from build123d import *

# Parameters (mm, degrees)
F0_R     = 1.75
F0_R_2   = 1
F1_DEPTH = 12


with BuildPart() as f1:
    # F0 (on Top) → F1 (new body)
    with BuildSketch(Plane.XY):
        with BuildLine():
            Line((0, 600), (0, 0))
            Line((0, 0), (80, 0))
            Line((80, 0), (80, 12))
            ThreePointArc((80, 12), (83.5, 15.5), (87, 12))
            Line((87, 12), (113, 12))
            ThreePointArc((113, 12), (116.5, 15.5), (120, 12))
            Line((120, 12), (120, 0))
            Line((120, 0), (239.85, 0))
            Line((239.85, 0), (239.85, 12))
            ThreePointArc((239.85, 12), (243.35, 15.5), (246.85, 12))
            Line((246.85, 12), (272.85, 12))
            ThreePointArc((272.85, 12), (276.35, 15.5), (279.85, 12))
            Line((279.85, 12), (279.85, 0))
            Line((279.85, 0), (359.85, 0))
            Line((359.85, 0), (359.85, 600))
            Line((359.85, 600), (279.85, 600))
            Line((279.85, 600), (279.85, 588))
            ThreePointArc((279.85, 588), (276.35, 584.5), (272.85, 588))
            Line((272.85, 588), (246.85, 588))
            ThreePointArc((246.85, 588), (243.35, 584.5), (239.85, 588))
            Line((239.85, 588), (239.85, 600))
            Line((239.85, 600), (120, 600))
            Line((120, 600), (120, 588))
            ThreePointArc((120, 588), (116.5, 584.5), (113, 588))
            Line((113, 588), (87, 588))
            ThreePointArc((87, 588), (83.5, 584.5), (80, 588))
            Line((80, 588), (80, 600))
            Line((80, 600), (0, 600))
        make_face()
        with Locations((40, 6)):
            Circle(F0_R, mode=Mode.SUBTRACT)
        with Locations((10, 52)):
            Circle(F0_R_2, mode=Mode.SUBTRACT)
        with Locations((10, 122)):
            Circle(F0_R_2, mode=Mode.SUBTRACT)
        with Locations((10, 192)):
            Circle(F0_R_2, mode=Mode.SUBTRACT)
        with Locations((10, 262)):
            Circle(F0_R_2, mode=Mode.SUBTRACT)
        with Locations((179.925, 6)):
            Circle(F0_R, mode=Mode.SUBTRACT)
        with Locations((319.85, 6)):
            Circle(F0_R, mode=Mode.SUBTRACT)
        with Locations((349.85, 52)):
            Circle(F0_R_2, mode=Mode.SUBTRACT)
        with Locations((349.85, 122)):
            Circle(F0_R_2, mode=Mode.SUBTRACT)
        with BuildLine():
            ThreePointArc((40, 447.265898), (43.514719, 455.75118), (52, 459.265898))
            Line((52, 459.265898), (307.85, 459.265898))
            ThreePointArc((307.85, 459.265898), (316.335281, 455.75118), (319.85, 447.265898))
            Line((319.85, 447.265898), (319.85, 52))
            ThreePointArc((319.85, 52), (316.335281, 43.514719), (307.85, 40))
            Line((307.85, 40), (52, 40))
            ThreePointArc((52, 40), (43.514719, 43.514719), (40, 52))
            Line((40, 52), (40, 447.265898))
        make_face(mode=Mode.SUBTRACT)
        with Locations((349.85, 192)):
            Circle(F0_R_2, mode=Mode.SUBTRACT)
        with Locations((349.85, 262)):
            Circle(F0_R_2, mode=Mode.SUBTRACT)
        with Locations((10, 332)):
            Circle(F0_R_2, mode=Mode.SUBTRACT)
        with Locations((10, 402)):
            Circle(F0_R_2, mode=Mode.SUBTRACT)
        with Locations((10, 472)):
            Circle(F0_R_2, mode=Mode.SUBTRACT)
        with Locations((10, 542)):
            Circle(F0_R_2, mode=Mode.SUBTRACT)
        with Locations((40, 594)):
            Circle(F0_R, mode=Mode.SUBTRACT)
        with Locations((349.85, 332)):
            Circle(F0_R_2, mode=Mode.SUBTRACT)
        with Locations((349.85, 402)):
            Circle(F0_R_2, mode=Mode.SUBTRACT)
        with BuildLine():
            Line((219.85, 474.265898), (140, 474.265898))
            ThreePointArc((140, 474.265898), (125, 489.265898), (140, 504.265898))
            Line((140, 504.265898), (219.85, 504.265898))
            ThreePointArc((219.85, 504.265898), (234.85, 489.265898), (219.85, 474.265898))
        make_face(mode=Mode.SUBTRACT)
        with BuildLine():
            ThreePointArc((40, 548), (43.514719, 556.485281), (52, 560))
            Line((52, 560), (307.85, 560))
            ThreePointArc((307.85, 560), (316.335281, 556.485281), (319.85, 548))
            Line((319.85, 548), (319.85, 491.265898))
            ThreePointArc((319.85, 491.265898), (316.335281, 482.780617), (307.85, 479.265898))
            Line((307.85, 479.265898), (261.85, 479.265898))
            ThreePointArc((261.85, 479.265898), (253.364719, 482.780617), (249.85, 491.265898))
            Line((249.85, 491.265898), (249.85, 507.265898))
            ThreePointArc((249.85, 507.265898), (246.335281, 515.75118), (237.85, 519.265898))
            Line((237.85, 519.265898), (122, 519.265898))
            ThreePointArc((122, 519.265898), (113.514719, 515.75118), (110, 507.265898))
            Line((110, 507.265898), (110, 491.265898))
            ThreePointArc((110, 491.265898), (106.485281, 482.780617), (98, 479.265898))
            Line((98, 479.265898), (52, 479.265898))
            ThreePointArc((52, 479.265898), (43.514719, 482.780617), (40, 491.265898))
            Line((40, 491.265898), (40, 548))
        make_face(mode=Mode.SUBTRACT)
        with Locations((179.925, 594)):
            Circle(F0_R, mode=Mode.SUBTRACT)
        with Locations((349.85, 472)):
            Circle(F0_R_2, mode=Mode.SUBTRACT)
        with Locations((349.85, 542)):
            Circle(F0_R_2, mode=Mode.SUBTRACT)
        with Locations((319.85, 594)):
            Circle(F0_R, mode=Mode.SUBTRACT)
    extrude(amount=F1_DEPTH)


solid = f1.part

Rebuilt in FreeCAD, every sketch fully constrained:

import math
import FreeCAD as App
import Part
import Sketcher
Q = App.Units.Quantity

doc = App.newDocument("Part")
body = doc.addObject("PartDesign::Body", "Body")

# Sketch on XY plane
sketch1 = body.newObject("Sketcher::SketchObject", "Sketch")
sketch1.AttachmentSupport = (doc.getObject("XY_Plane"), [""])
sketch1.MapMode = "FlatFace"
sketch1.addGeometry([
    Part.LineSegment(App.Vector(0, 600, 0), App.Vector(0, 0, 0)),  # 0
    Part.LineSegment(App.Vector(0, 0, 0), App.Vector(80, 0, 0)),  # 1
    Part.LineSegment(App.Vector(80, 0, 0), App.Vector(80, 12, 0)),  # 2
    Part.ArcOfCircle(Part.Circle(App.Vector(83.5, 12, 0), App.Vector(0, 0, 1), 3.5), math.radians(0), math.radians(180)),  # 3
    Part.LineSegment(App.Vector(87, 12, 0), App.Vector(113, 12, 0)),  # 4
    Part.ArcOfCircle(Part.Circle(App.Vector(116.5, 12, 0), App.Vector(0, 0, 1), 3.5), math.radians(0), math.radians(180)),  # 5
    Part.LineSegment(App.Vector(120, 12, 0), App.Vector(120, 0, 0)),  # 6
    Part.LineSegment(App.Vector(120, 0, 0), App.Vector(239.85, 0, 0)),  # 7
    Part.LineSegment(App.Vector(239.85, 0, 0), App.Vector(239.85, 12, 0)),  # 8
    Part.ArcOfCircle(Part.Circle(App.Vector(243.35, 12, 0), App.Vector(0, 0, 1), 3.5), math.radians(0), math.radians(180)),  # 9
    Part.LineSegment(App.Vector(246.85, 12, 0), App.Vector(272.85, 12, 0)),  # 10
    Part.ArcOfCircle(Part.Circle(App.Vector(276.35, 12, 0), App.Vector(0, 0, 1), 3.5), math.radians(0), math.radians(180)),  # 11
    Part.LineSegment(App.Vector(279.85, 12, 0), App.Vector(279.85, 0, 0)),  # 12
    Part.LineSegment(App.Vector(279.85, 0, 0), App.Vector(359.85, 0, 0)),  # 13
    Part.LineSegment(App.Vector(359.85, 0, 0), App.Vector(359.85, 600, 0)),  # 14
    Part.LineSegment(App.Vector(359.85, 600, 0), App.Vector(279.85, 600, 0)),  # 15
    Part.LineSegment(App.Vector(279.85, 600, 0), App.Vector(279.85, 588, 0)),  # 16
    Part.ArcOfCircle(Part.Circle(App.Vector(276.35, 588, 0), App.Vector(0, 0, 1), 3.5), math.radians(180), math.radians(360)),  # 17
    Part.LineSegment(App.Vector(272.85, 588, 0), App.Vector(246.85, 588, 0)),  # 18
    Part.ArcOfCircle(Part.Circle(App.Vector(243.35, 588, 0), App.Vector(0, 0, 1), 3.5), math.radians(180), math.radians(360)),  # 19
    Part.LineSegment(App.Vector(239.85, 588, 0), App.Vector(239.85, 600, 0)),  # 20
    Part.LineSegment(App.Vector(239.85, 600, 0), App.Vector(120, 600, 0)),  # 21
    Part.LineSegment(App.Vector(120, 600, 0), App.Vector(120, 588, 0)),  # 22
    Part.ArcOfCircle(Part.Circle(App.Vector(116.5, 588, 0), App.Vector(0, 0, 1), 3.5), math.radians(180), math.radians(360)),  # 23
    Part.LineSegment(App.Vector(113, 588, 0), App.Vector(87, 588, 0)),  # 24
    Part.ArcOfCircle(Part.Circle(App.Vector(83.5, 588, 0), App.Vector(0, 0, 1), 3.5), math.radians(180), math.radians(360)),  # 25
    Part.LineSegment(App.Vector(80, 588, 0), App.Vector(80, 600, 0)),  # 26
    Part.LineSegment(App.Vector(80, 600, 0), App.Vector(0, 600, 0)),  # 27
    Part.Circle(App.Vector(40, 6, 0), App.Vector(0, 0, 1), 1.75),  # 28
    Part.Circle(App.Vector(10, 52, 0), App.Vector(0, 0, 1), 1),  # 29
    Part.Circle(App.Vector(10, 122, 0), App.Vector(0, 0, 1), 1),  # 30
    Part.Circle(App.Vector(10, 192, 0), App.Vector(0, 0, 1), 1),  # 31
    Part.Circle(App.Vector(10, 262, 0), App.Vector(0, 0, 1), 1),  # 32
    Part.Circle(App.Vector(179.925, 6, 0), App.Vector(0, 0, 1), 1.75),  # 33
    Part.Circle(App.Vector(319.85, 6, 0), App.Vector(0, 0, 1), 1.75),  # 34
    Part.Circle(App.Vector(349.85, 52, 0), App.Vector(0, 0, 1), 1),  # 35
    Part.Circle(App.Vector(349.85, 122, 0), App.Vector(0, 0, 1), 1),  # 36
    Part.LineSegment(App.Vector(40, 52, 0), App.Vector(40, 447.265898, 0)),  # 37
    Part.ArcOfCircle(Part.Circle(App.Vector(52, 447.265898, 0), App.Vector(0, 0, 1), 12), math.radians(89.999998), math.radians(180.000002)),  # 38
    Part.LineSegment(App.Vector(52, 459.265898, 0), App.Vector(307.85, 459.265898, 0)),  # 39
    Part.ArcOfCircle(Part.Circle(App.Vector(307.85, 447.265898, 0), App.Vector(0, 0, 1), 12), math.radians(-0.000002), math.radians(90.000002)),  # 40
    Part.LineSegment(App.Vector(319.85, 447.265898, 0), App.Vector(319.85, 52, 0)),  # 41
    Part.ArcOfCircle(Part.Circle(App.Vector(307.849999, 52.000001, 0), App.Vector(0, 0, 1), 12.000001), math.radians(-89.999994), math.radians(-0.000006)),  # 42
    Part.LineSegment(App.Vector(307.85, 40, 0), App.Vector(52, 40, 0)),  # 43
    Part.ArcOfCircle(Part.Circle(App.Vector(52.000001, 52.000001, 0), App.Vector(0, 0, 1), 12.000001), math.radians(-179.999994), math.radians(-90.000006)),  # 44
    Part.Circle(App.Vector(349.85, 192, 0), App.Vector(0, 0, 1), 1),  # 45
    Part.Circle(App.Vector(349.85, 262, 0), App.Vector(0, 0, 1), 1),  # 46
    Part.Circle(App.Vector(10, 332, 0), App.Vector(0, 0, 1), 1),  # 47
    Part.Circle(App.Vector(10, 402, 0), App.Vector(0, 0, 1), 1),  # 48
    Part.Circle(App.Vector(10, 472, 0), App.Vector(0, 0, 1), 1),  # 49
    Part.Circle(App.Vector(10, 542, 0), App.Vector(0, 0, 1), 1),  # 50
    Part.Circle(App.Vector(40, 594, 0), App.Vector(0, 0, 1), 1.75),  # 51
    Part.Circle(App.Vector(349.85, 332, 0), App.Vector(0, 0, 1), 1),  # 52
    Part.Circle(App.Vector(349.85, 402, 0), App.Vector(0, 0, 1), 1),  # 53
    Part.ArcOfCircle(Part.Circle(App.Vector(219.85, 489.265898, 0), App.Vector(0, 0, 1), 15), math.radians(-90), math.radians(90)),  # 54
    Part.LineSegment(App.Vector(219.85, 474.265898, 0), App.Vector(140, 474.265898, 0)),  # 55
    Part.ArcOfCircle(Part.Circle(App.Vector(140, 489.265898, 0), App.Vector(0, 0, 1), 15), math.radians(90), math.radians(270)),  # 56
    Part.LineSegment(App.Vector(140, 504.265898, 0), App.Vector(219.85, 504.265898, 0)),  # 57
    Part.LineSegment(App.Vector(40, 491.265898, 0), App.Vector(40, 548, 0)),  # 58
    Part.ArcOfCircle(Part.Circle(App.Vector(52.000001, 547.999999, 0), App.Vector(0, 0, 1), 12.000001), math.radians(90.000006), math.radians(179.999994)),  # 59
    Part.LineSegment(App.Vector(52, 560, 0), App.Vector(307.85, 560, 0)),  # 60
    Part.ArcOfCircle(Part.Circle(App.Vector(307.849999, 547.999999, 0), App.Vector(0, 0, 1), 12.000001), math.radians(0.000006), math.radians(89.999994)),  # 61
    Part.LineSegment(App.Vector(319.85, 548, 0), App.Vector(319.85, 491.265898, 0)),  # 62
    Part.ArcOfCircle(Part.Circle(App.Vector(307.849999, 491.265899, 0), App.Vector(0, 0, 1), 12.000001), math.radians(-89.999994), math.radians(-0.000006)),  # 63
    Part.LineSegment(App.Vector(307.85, 479.265898, 0), App.Vector(261.85, 479.265898, 0)),  # 64
    Part.ArcOfCircle(Part.Circle(App.Vector(261.850001, 491.265899, 0), App.Vector(0, 0, 1), 12.000001), math.radians(-179.999994), math.radians(-90.000006)),  # 65
    Part.LineSegment(App.Vector(249.85, 491.265898, 0), App.Vector(249.85, 507.265898, 0)),  # 66
    Part.ArcOfCircle(Part.Circle(App.Vector(237.85, 507.265898, 0), App.Vector(0, 0, 1), 12), math.radians(-0.000002), math.radians(90.000002)),  # 67
    Part.LineSegment(App.Vector(237.85, 519.265898, 0), App.Vector(122, 519.265898, 0)),  # 68
    Part.ArcOfCircle(Part.Circle(App.Vector(122, 507.265898, 0), App.Vector(0, 0, 1), 12), math.radians(89.999998), math.radians(180.000002)),  # 69
    Part.LineSegment(App.Vector(110, 507.265898, 0), App.Vector(110, 491.265898, 0)),  # 70
    Part.ArcOfCircle(Part.Circle(App.Vector(97.999999, 491.265899, 0), App.Vector(0, 0, 1), 12.000001), math.radians(-89.999994), math.radians(-0.000006)),  # 71
    Part.LineSegment(App.Vector(98, 479.265898, 0), App.Vector(52, 479.265898, 0)),  # 72
    Part.ArcOfCircle(Part.Circle(App.Vector(52.000001, 491.265899, 0), App.Vector(0, 0, 1), 12.000001), math.radians(-179.999994), math.radians(-90.000006)),  # 73
    Part.Circle(App.Vector(179.925, 594, 0), App.Vector(0, 0, 1), 1.75),  # 74
    Part.Circle(App.Vector(349.85, 472, 0), App.Vector(0, 0, 1), 1),  # 75
    Part.Circle(App.Vector(349.85, 542, 0), App.Vector(0, 0, 1), 1),  # 76
    Part.Circle(App.Vector(319.85, 594, 0), App.Vector(0, 0, 1), 1.75),  # 77
], False)
sketch1.addConstraint([
    Sketcher.Constraint("Coincident", 0, 2, 1, 1),
    Sketcher.Constraint("Coincident", 1, 2, 2, 1),
    Sketcher.Constraint("Tangent", 2, 2, 3, 2),
    Sketcher.Constraint("Coincident", 3, 1, 4, 1),
    Sketcher.Constraint("Coincident", 4, 2, 5, 2),
    Sketcher.Constraint("Tangent", 5, 1, 6, 1),
    Sketcher.Constraint("Coincident", 6, 2, 7, 1),
    Sketcher.Constraint("Coincident", 7, 2, 8, 1),
    Sketcher.Constraint("Tangent", 8, 2, 9, 2),
    Sketcher.Constraint("Coincident", 9, 1, 10, 1),
    Sketcher.Constraint("Coincident", 10, 2, 11, 2),
    Sketcher.Constraint("Tangent", 11, 1, 12, 1),
    Sketcher.Constraint("Coincident", 12, 2, 13, 1),
    Sketcher.Constraint("Coincident", 13, 2, 14, 1),
    Sketcher.Constraint("Coincident", 14, 2, 15, 1),
    Sketcher.Constraint("Coincident", 15, 2, 16, 1),
    Sketcher.Constraint("Tangent", 16, 2, 17, 2),
    Sketcher.Constraint("Coincident", 17, 1, 18, 1),
    Sketcher.Constraint("Coincident", 18, 2, 19, 2),
    Sketcher.Constraint("Tangent", 19, 1, 20, 1),
    Sketcher.Constraint("Coincident", 20, 2, 21, 1),
    Sketcher.Constraint("Coincident", 21, 2, 22, 1),
    Sketcher.Constraint("Tangent", 22, 2, 23, 2),
    Sketcher.Constraint("Coincident", 23, 1, 24, 1),
    Sketcher.Constraint("Coincident", 24, 2, 25, 2),
    Sketcher.Constraint("Tangent", 25, 1, 26, 1),
    Sketcher.Constraint("Coincident", 26, 2, 27, 1),
    Sketcher.Constraint("Coincident", 27, 2, 0, 1),
    Sketcher.Constraint("Tangent", 37, 2, 38, 2),
    Sketcher.Constraint("Tangent", 38, 1, 39, 1),
    Sketcher.Constraint("Tangent", 39, 2, 40, 2),
    Sketcher.Constraint("Tangent", 40, 1, 41, 1),
    Sketcher.Constraint("Tangent", 41, 2, 42, 2),
    Sketcher.Constraint("Tangent", 42, 1, 43, 1),
    Sketcher.Constraint("Tangent", 43, 2, 44, 2),
    Sketcher.Constraint("Tangent", 44, 1, 37, 1),
    Sketcher.Constraint("Tangent", 54, 1, 55, 1),
    Sketcher.Constraint("Tangent", 55, 2, 56, 2),
    Sketcher.Constraint("Tangent", 56, 1, 57, 1),
    Sketcher.Constraint("Tangent", 57, 2, 54, 2),
    Sketcher.Constraint("Tangent", 58, 2, 59, 2),
    Sketcher.Constraint("Tangent", 59, 1, 60, 1),
    Sketcher.Constraint("Tangent", 60, 2, 61, 2),
    Sketcher.Constraint("Tangent", 61, 1, 62, 1),
    Sketcher.Constraint("Tangent", 62, 2, 63, 2),
    Sketcher.Constraint("Tangent", 63, 1, 64, 1),
    Sketcher.Constraint("Tangent", 64, 2, 65, 2),
    Sketcher.Constraint("Tangent", 65, 1, 66, 1),
    Sketcher.Constraint("Tangent", 66, 2, 67, 1),
    Sketcher.Constraint("Tangent", 67, 2, 68, 1),
    Sketcher.Constraint("Tangent", 68, 2, 69, 1),
    Sketcher.Constraint("Tangent", 69, 2, 70, 1),
    Sketcher.Constraint("Tangent", 70, 2, 71, 2),
    Sketcher.Constraint("Tangent", 71, 1, 72, 1),
    Sketcher.Constraint("Tangent", 72, 2, 73, 2),
    Sketcher.Constraint("Tangent", 73, 1, 58, 1),
    Sketcher.Constraint("Vertical", 0),
    Sketcher.Constraint("Horizontal", 1),
    Sketcher.Constraint("Vertical", 2),
    Sketcher.Constraint("Horizontal", 4),
    Sketcher.Constraint("Vertical", 6),
    Sketcher.Constraint("Horizontal", 7),
    Sketcher.Constraint("Vertical", 8),
    Sketcher.Constraint("Horizontal", 10),
    Sketcher.Constraint("Vertical", 12),
    Sketcher.Constraint("Horizontal", 13),
    Sketcher.Constraint("Vertical", 14),
    Sketcher.Constraint("Horizontal", 15),
    Sketcher.Constraint("Vertical", 16),
    Sketcher.Constraint("Horizontal", 18),
    Sketcher.Constraint("Vertical", 20),
    Sketcher.Constraint("Horizontal", 21),
    Sketcher.Constraint("Vertical", 22),
    Sketcher.Constraint("Horizontal", 24),
    Sketcher.Constraint("Vertical", 26),
    Sketcher.Constraint("Horizontal", 27),
    Sketcher.Constraint("Vertical", 37),
    Sketcher.Constraint("Horizontal", 39),
    Sketcher.Constraint("Vertical", 41),
    Sketcher.Constraint("Horizontal", 43),
    Sketcher.Constraint("Horizontal", 55),
    Sketcher.Constraint("Horizontal", 57),
    Sketcher.Constraint("Vertical", 58),
    Sketcher.Constraint("Horizontal", 60),
    Sketcher.Constraint("Vertical", 62),
    Sketcher.Constraint("Horizontal", 64),
    Sketcher.Constraint("Vertical", 66),
    Sketcher.Constraint("Horizontal", 68),
    Sketcher.Constraint("Vertical", 70),
    Sketcher.Constraint("Horizontal", 72),
    Sketcher.Constraint("Coincident", 0, 2, -1, 1),
    Sketcher.Constraint("Equal", 3, 5),
    Sketcher.Constraint("Equal", 5, 9),
    Sketcher.Constraint("Equal", 9, 11),
    Sketcher.Constraint("Equal", 11, 17),
    Sketcher.Constraint("Equal", 17, 19),
    Sketcher.Constraint("Equal", 19, 23),
    Sketcher.Constraint("Equal", 23, 25),
    Sketcher.Constraint("Equal", 29, 30),
    Sketcher.Constraint("Equal", 30, 31),
    Sketcher.Constraint("Equal", 31, 32),
    Sketcher.Constraint("Equal", 28, 33),
    Sketcher.Constraint("Equal", 33, 34),
    Sketcher.Constraint("Equal", 32, 35),
    Sketcher.Constraint("Equal", 35, 36),
    Sketcher.Constraint("Equal", 38, 40),
    Sketcher.Constraint("Equal", 40, 42),
    Sketcher.Constraint("Equal", 42, 44),
    Sketcher.Constraint("Equal", 36, 45),
    Sketcher.Constraint("Equal", 45, 46),
    Sketcher.Constraint("Equal", 46, 47),
    Sketcher.Constraint("Equal", 47, 48),
    Sketcher.Constraint("Equal", 48, 49),
    Sketcher.Constraint("Equal", 49, 50),
    Sketcher.Constraint("Equal", 34, 51),
    Sketcher.Constraint("Equal", 50, 52),
    Sketcher.Constraint("Equal", 52, 53),
    Sketcher.Constraint("Equal", 44, 59),
    Sketcher.Constraint("Equal", 59, 61),
    Sketcher.Constraint("Equal", 61, 63),
    Sketcher.Constraint("Equal", 63, 65),
    Sketcher.Constraint("Equal", 65, 67),
    Sketcher.Constraint("Equal", 67, 69),
    Sketcher.Constraint("Equal", 69, 71),
    Sketcher.Constraint("Equal", 71, 73),
    Sketcher.Constraint("Equal", 51, 74),
    Sketcher.Constraint("Equal", 53, 75),
    Sketcher.Constraint("Equal", 75, 76),
    Sketcher.Constraint("Equal", 74, 77),
    Sketcher.Constraint("PointOnObject", 6, 2, -1),
    Sketcher.Constraint("PointOnObject", 12, 2, -1),
    Sketcher.Constraint("Horizontal", 3, 3, 5, 3),
    Sketcher.Constraint("Horizontal", 5, 3, 9, 3),
    Sketcher.Constraint("Horizontal", 9, 3, 11, 3),
    Sketcher.Constraint("Horizontal", 17, 3, 19, 3),
    Sketcher.Constraint("Horizontal", 19, 3, 23, 3),
    Sketcher.Constraint("Horizontal", 23, 3, 25, 3),
    Sketcher.Constraint("Horizontal", 28, 3, 33, 3),
    Sketcher.Constraint("Horizontal", 33, 3, 34, 3),
    Sketcher.Constraint("Horizontal", 29, 3, 35, 3),
    Sketcher.Constraint("Horizontal", 30, 3, 36, 3),
    Sketcher.Constraint("Horizontal", 35, 3, 42, 3),
    Sketcher.Constraint("Horizontal", 31, 3, 45, 3),
    Sketcher.Constraint("Horizontal", 32, 3, 46, 3),
    Sketcher.Constraint("Horizontal", 47, 3, 52, 3),
    Sketcher.Constraint("Horizontal", 48, 3, 53, 3),
    Sketcher.Constraint("Horizontal", 65, 3, 71, 3),
    Sketcher.Constraint("Horizontal", 51, 3, 74, 3),
    Sketcher.Constraint("Horizontal", 49, 3, 75, 3),
    Sketcher.Constraint("Horizontal", 50, 3, 76, 3),
    Sketcher.Constraint("Horizontal", 74, 3, 77, 3),
    Sketcher.Constraint("Horizontal", 2, 2, 3, 1),
    Sketcher.Constraint("Horizontal", 8, 2, 9, 1),
    Sketcher.Constraint("Horizontal", 16, 2, 17, 1),
    Sketcher.Constraint("Horizontal", 15, 2, 20, 2),
    Sketcher.Constraint("Horizontal", 22, 2, 23, 1),
    Sketcher.Constraint("Horizontal", 21, 2, 26, 2),
    Sketcher.Constraint("Vertical", 11, 3, 17, 3),
    Sketcher.Constraint("Vertical", 9, 3, 19, 3),
    Sketcher.Constraint("Vertical", 5, 3, 23, 3),
    Sketcher.Constraint("Vertical", 3, 3, 25, 3),
    Sketcher.Constraint("Vertical", 29, 3, 30, 3),
    Sketcher.Constraint("Vertical", 30, 3, 31, 3),
    Sketcher.Constraint("Vertical", 31, 3, 32, 3),
    Sketcher.Constraint("Vertical", 35, 3, 36, 3),
    Sketcher.Constraint("Vertical", 36, 3, 45, 3),
    Sketcher.Constraint("Vertical", 45, 3, 46, 3),
    Sketcher.Constraint("Vertical", 32, 3, 47, 3),
    Sketcher.Constraint("Vertical", 47, 3, 48, 3),
    Sketcher.Constraint("Vertical", 48, 3, 49, 3),
    Sketcher.Constraint("Vertical", 49, 3, 50, 3),
    Sketcher.Constraint("Vertical", 28, 3, 51, 3),
    Sketcher.Constraint("Vertical", 46, 3, 52, 3),
    Sketcher.Constraint("Vertical", 52, 3, 53, 3),
    Sketcher.Constraint("Vertical", 44, 3, 59, 3),
    Sketcher.Constraint("Vertical", 42, 3, 61, 3),
    Sketcher.Constraint("Vertical", 33, 3, 74, 3),
    Sketcher.Constraint("Vertical", 53, 3, 75, 3),
    Sketcher.Constraint("Vertical", 75, 3, 76, 3),
    Sketcher.Constraint("Vertical", 34, 3, 77, 3),
    Sketcher.Constraint("Vertical", 51, 3, 37, 2),
    Sketcher.Constraint("Vertical", 77, 3, 40, 1),
    Sketcher.Constraint("Equal", 4, 10),
    Sketcher.Constraint("Equal", 1, 13),
    Sketcher.Constraint("Equal", 64, 72),
    Sketcher.Constraint("Equal", 12, 16),
    Sketcher.Constraint("Diameter", 29, Q("2 mm")),
    Sketcher.Constraint("Radius", 38, Q("12 mm")),
    Sketcher.Constraint("Radius", 54, Q("15 mm")),
    Sketcher.Constraint("Diameter", 28, Q("3.5 mm")),
    Sketcher.Constraint("Radius", 3, Q("3.5 mm")),
    Sketcher.Constraint("DistanceX", 1, 1, 1, 2, Q("80 mm")),
    Sketcher.Constraint("DistanceX", 4, 1, 4, 2, Q("26 mm")),
    Sketcher.Constraint("DistanceX", 64, 2, 64, 1, Q("46 mm")),
    Sketcher.Constraint("DistanceY", 0, 2, 0, 1, Q("600 mm")),
    Sketcher.Constraint("DistanceY", 2, 1, 2, 2, Q("12 mm")),
    Sketcher.Constraint("DistanceY", 66, 1, 66, 2, Q("16 mm")),
    Sketcher.Constraint("DistanceX", -1, 1, 28, 3, Q("40 mm")),
    Sketcher.Constraint("DistanceY", -1, 1, 28, 3, Q("6 mm")),
    Sketcher.Constraint("DistanceX", -1, 1, 29, 3, Q("10 mm")),
    Sketcher.Constraint("DistanceY", -1, 1, 29, 3, Q("52 mm")),
    Sketcher.Constraint("DistanceY", -1, 1, 30, 3, Q("122 mm")),
    Sketcher.Constraint("DistanceY", -1, 1, 31, 3, Q("192 mm")),
    Sketcher.Constraint("DistanceY", -1, 1, 32, 3, Q("262 mm")),
    Sketcher.Constraint("DistanceY", -1, 1, 47, 3, Q("332 mm")),
    Sketcher.Constraint("DistanceY", -1, 1, 48, 3, Q("402 mm")),
    Sketcher.Constraint("DistanceY", -1, 1, 49, 3, Q("472 mm")),
    Sketcher.Constraint("DistanceY", -1, 1, 50, 3, Q("542 mm")),
    Sketcher.Constraint("DistanceY", -1, 1, 51, 3, Q("594 mm")),
    Sketcher.Constraint("DistanceX", -1, 1, 56, 3, Q("140 mm")),
    Sketcher.Constraint("DistanceY", -1, 1, 59, 3, Q("547.999999 mm")),
    Sketcher.Constraint("DistanceX", 7, 1, 7, 2, Q("119.85 mm")),
    Sketcher.Constraint("DistanceX", 39, 1, 39, 2, Q("255.85 mm")),
    Sketcher.Constraint("DistanceX", 55, 2, 55, 1, Q("79.85 mm")),
    Sketcher.Constraint("DistanceX", -1, 1, 35, 3, Q("349.85 mm")),
    Sketcher.Constraint("DistanceY", 37, 1, 37, 2, Q("395.265898 mm")),
    Sketcher.Constraint("DistanceX", -1, 1, 33, 3, Q("179.925 mm")),
    Sketcher.Constraint("DistanceY", -1, 1, 54, 3, Q("489.265898 mm")),
    Sketcher.Constraint("DistanceY", -1, 1, 63, 3, Q("491.265899 mm")),
])
pad1 = body.newObject("PartDesign::Pad", "Pad")
pad1.Profile = sketch1
pad1.Length = 12

doc.recompute()
